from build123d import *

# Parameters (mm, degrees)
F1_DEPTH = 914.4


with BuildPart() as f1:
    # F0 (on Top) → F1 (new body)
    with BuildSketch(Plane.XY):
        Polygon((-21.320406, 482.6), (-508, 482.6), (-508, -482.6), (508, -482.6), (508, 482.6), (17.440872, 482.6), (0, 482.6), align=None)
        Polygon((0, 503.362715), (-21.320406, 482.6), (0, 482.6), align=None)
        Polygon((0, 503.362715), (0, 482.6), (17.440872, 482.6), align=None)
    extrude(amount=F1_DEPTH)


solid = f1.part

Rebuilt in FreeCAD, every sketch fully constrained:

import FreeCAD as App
import Part
import Sketcher
from FreeCAD import Vector
Q = App.Units.Quantity


def add_polygon(sketch, points):
    """Adds a closed chain of lines whose ends are joined by coincident constraints."""
    first, n = sketch.GeometryCount, len(points)
    for a, b in zip(points, points[1:] + points[:1]):
        sketch.addGeometry(Part.LineSegment(App.Vector(*a, 0), App.Vector(*b, 0)), False)
    for i in range(n):
        sketch.addConstraint(Sketcher.Constraint("Coincident", first + i, 2, first + (i + 1) % n, 1))

doc = App.newDocument("Part")
body = doc.addObject("PartDesign::Body", "Body")

# Sketch on XY plane
sketch1 = doc.addObject("Sketcher::SketchObject", "Sketch")
body.addObject(sketch1)
sketch1.AttachmentSupport = (doc.XY_Plane, [""])
sketch1.MapMode = "FlatFace"
add_polygon(sketch1, [(-508, 483), (-508, -483), (508, -483), (508, 483), (17, 483), (0, 503), (-21, 483)])  # lines 0-6
sketch1.addConstraint([
    Sketcher.Constraint("Vertical", 0),
    Sketcher.Constraint("Horizontal", 1),
    Sketcher.Constraint("Vertical", 2),
    Sketcher.Constraint("Horizontal", 3),
    Sketcher.Constraint("Horizontal", 6),
    Sketcher.Constraint("Symmetric", 0, 2, 2, 2, -1, 1),
    Sketcher.Constraint("PointOnObject", 4, 2, -2),
    Sketcher.Constraint("Horizontal", 3, 2, 5, 2),
    Sketcher.Constraint("DistanceX", 1, 1, 1, 2, Q("40 in")),
    Sketcher.Constraint("DistanceY", 0, 2, 0, 1, Q("38 in")),
    Sketcher.Constraint("DistanceX", 3, 2, 3, 1, 490.559128),
    Sketcher.Constraint("DistanceX", 6, 2, 6, 1, 486.679594),
    Sketcher.Constraint("Distance", 4, 27.115943),
])
pad1 = doc.addObject("PartDesign::Pad", "Pad")
body.addObject(pad1)
pad1.Profile = sketch1
pad1.Length = Q("36 in")

doc.recompute()
